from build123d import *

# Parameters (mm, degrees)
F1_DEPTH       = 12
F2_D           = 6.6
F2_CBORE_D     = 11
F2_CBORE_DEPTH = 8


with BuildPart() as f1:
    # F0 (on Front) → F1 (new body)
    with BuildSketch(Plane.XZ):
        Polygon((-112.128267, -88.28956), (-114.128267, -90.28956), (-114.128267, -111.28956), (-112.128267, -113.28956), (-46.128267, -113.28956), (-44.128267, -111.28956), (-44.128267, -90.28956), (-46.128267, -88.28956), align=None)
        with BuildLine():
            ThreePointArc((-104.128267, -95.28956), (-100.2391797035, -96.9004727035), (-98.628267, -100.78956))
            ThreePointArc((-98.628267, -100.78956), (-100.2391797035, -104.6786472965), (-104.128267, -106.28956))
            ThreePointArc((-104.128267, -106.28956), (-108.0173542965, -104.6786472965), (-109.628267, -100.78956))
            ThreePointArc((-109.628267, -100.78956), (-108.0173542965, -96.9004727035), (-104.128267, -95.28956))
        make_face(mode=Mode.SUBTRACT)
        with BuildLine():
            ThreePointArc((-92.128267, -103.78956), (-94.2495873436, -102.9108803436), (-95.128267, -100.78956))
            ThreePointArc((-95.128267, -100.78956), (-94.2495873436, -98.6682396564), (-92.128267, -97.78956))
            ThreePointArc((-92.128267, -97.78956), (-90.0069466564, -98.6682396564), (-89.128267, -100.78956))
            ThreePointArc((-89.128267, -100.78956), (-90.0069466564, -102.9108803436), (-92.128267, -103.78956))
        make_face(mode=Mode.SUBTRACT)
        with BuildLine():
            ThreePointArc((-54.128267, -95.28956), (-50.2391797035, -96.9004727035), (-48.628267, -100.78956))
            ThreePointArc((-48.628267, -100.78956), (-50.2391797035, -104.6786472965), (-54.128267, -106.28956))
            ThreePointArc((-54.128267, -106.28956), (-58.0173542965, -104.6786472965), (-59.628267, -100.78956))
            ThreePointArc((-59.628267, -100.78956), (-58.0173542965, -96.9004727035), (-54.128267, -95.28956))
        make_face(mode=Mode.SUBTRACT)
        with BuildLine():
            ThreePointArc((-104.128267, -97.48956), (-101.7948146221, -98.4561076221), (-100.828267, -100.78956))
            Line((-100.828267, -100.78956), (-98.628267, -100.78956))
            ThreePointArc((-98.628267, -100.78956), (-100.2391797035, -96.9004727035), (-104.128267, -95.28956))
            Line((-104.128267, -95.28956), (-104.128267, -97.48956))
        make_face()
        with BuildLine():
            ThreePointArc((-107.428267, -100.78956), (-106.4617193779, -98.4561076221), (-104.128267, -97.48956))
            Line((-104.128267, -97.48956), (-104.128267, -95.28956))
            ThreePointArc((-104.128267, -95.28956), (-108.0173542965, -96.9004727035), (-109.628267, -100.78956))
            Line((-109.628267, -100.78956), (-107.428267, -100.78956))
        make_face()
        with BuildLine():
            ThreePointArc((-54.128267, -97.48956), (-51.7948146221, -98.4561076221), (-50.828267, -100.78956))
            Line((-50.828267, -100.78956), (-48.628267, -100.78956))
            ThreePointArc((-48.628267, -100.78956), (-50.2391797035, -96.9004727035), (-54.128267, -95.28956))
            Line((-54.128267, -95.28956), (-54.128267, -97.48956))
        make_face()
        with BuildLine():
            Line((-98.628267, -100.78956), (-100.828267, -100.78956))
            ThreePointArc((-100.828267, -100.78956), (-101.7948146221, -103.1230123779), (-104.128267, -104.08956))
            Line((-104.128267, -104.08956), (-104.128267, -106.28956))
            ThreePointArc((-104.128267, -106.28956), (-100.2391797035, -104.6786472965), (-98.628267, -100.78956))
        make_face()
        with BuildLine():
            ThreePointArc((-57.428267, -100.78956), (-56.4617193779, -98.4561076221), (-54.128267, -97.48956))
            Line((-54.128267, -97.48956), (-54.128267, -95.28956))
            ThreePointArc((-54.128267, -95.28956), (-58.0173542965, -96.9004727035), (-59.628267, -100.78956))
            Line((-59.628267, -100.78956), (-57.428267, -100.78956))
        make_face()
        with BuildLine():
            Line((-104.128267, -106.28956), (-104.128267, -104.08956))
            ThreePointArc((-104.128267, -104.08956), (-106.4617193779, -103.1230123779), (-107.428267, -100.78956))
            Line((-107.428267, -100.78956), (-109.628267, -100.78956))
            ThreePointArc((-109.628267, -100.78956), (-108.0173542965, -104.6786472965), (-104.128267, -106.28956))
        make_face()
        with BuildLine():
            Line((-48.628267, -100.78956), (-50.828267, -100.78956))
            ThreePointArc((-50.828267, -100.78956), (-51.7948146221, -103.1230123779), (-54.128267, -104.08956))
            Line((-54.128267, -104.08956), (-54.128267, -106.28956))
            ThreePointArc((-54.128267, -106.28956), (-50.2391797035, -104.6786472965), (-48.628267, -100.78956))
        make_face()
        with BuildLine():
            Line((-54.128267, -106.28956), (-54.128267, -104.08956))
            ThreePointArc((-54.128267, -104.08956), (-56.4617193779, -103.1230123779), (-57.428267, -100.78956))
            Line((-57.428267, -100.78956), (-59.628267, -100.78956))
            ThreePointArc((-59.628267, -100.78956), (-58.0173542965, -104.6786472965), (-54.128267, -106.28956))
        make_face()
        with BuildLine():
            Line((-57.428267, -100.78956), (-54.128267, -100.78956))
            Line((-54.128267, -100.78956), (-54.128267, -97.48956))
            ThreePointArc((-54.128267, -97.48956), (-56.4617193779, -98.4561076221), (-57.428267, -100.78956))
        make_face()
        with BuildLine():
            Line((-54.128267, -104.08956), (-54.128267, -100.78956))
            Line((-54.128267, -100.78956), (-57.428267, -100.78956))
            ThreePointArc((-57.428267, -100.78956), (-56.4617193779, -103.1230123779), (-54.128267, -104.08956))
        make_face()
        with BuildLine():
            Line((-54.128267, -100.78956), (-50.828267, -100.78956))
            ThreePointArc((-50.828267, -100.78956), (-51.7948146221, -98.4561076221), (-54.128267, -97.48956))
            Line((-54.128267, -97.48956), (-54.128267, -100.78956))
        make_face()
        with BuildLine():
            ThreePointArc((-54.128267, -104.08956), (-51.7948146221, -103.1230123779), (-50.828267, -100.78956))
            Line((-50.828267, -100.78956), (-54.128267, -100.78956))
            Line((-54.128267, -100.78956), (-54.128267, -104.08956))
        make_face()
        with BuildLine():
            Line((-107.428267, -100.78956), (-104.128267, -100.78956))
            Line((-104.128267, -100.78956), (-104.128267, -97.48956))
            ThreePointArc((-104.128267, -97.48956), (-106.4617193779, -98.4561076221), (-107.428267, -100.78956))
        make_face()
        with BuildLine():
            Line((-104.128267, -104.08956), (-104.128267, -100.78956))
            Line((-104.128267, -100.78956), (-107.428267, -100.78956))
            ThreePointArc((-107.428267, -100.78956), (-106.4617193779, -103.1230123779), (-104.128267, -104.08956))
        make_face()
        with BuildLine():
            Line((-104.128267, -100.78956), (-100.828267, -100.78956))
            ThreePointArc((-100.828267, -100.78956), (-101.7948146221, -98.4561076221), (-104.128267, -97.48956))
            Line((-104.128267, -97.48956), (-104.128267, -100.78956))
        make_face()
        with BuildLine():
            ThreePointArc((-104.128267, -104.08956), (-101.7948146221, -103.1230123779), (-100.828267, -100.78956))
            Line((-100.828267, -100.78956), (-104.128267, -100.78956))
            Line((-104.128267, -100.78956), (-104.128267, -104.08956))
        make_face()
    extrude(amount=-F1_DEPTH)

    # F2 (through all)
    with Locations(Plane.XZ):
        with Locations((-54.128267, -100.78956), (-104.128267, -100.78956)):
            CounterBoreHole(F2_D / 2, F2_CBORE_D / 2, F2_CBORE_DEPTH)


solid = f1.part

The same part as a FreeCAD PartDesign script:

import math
import FreeCAD as App
import Part
import Sketcher
from FreeCAD import Vector
Q = App.Units.Quantity


def add_polygon(sketch, points):
    """Adds a closed chain of lines whose ends are joined by coincident constraints."""
    first, n = sketch.GeometryCount, len(points)
    for a, b in zip(points, points[1:] + points[:1]):
        sketch.addGeometry(Part.LineSegment(App.Vector(*a, 0), App.Vector(*b, 0)), False)
    for i in range(n):
        sketch.addConstraint(Sketcher.Constraint("Coincident", first + i, 2, first + (i + 1) % n, 1))

doc = App.newDocument("Part")
body = doc.addObject("PartDesign::Body", "Body")

# Sketch on XZ plane
sketch1 = doc.addObject("Sketcher::SketchObject", "Sketch")
body.addObject(sketch1)
sketch1.AttachmentSupport = (doc.XZ_Plane, [""])
sketch1.MapMode = "FlatFace"
add_polygon(sketch1, [(-112.1, -88.3), (-114.1, -90.3), (-114.1, -111.3), (-112.1, -113.3), (-46.1, -113.3), (-44.1, -111.3), (-44.1, -90.3), (-46.1, -88.3)])  # lines 0-7
sketch1.addGeometry(Part.ArcOfCircle(Part.Circle(Vector(-92.1, -100.8, 0), Vector(0, 0, 1), 3), math.radians(-90), math.radians(0)), False)  # 8
sketch1.addGeometry(Part.ArcOfCircle(Part.Circle(Vector(-92.1, -100.8, 0), Vector(0, 0, 1), 3), math.radians(180), math.radians(270)), False)  # 9
sketch1.addGeometry(Part.ArcOfCircle(Part.Circle(Vector(-92.1, -100.8, 0), Vector(0, 0, 1), 3), math.radians(90), math.radians(180)), False)  # 10
sketch1.addGeometry(Part.ArcOfCircle(Part.Circle(Vector(-92.1, -100.8, 0), Vector(0, 0, 1), 3), math.radians(0), math.radians(90)), False)  # 11
sketch1.addConstraint(Sketcher.Constraint("Tangent", 8, 1, 9, 2))
sketch1.addConstraint(Sketcher.Constraint("Tangent", 9, 1, 10, 2))
sketch1.addConstraint(Sketcher.Constraint("Tangent", 10, 1, 11, 2))
sketch1.addConstraint(Sketcher.Constraint("Tangent", 11, 1, 8, 2))
sketch1.addConstraint(Sketcher.Constraint("Vertical", 1))
sketch1.addConstraint(Sketcher.Constraint("Horizontal", 3))
sketch1.addConstraint(Sketcher.Constraint("Vertical", 5))
sketch1.addConstraint(Sketcher.Constraint("Horizontal", 7))
sketch1.addConstraint(Sketcher.Constraint("Equal", 8, 9))
sketch1.addConstraint(Sketcher.Constraint("Perpendicular", 0, 2))
sketch1.addConstraint(Sketcher.Constraint("Perpendicular", 2, 4))
sketch1.addConstraint(Sketcher.Constraint("Perpendicular", 4, 6))
sketch1.addConstraint(Sketcher.Constraint("Horizontal", 1, 2, 4, 2))
sketch1.addConstraint(Sketcher.Constraint("Horizontal", 0, 2, 5, 2))
sketch1.addConstraint(Sketcher.Constraint("Horizontal", 11, 3, 9, 1))
sketch1.addConstraint(Sketcher.Constraint("Horizontal", 9, 1, 11, 1))
sketch1.addConstraint(Sketcher.Constraint("Vertical", 3, 2, 6, 2))
sketch1.addConstraint(Sketcher.Constraint("Vertical", 2, 2, 7, 2))
sketch1.addConstraint(Sketcher.Constraint("Vertical", 11, 3, 8, 1))
sketch1.addConstraint(Sketcher.Constraint("Vertical", 8, 1, 10, 1))
sketch1.addConstraint(Sketcher.Constraint("Radius", 8, Q("3 mm")))
sketch1.addConstraint(Sketcher.Constraint("DistanceX", 3, 1, 3, 2, Q("66 mm")))
sketch1.addConstraint(Sketcher.Constraint("DistanceY", 1, 2, 1, 1, Q("21 mm")))
sketch1.addConstraint(Sketcher.Constraint("DistanceX", 0, 2, 8, 3, Q("22 mm")))
sketch1.addConstraint(Sketcher.Constraint("DistanceX", 1, 2, 2, 2, Q("2 mm")))
sketch1.addConstraint(Sketcher.Constraint("DistanceY", 8, 3, 0, 2, Q("10.5 mm")))
sketch1.addConstraint(Sketcher.Constraint("DistanceY", 8, 3, -1, 1, Q("100.78956 mm")))
sketch1.addConstraint(Sketcher.Constraint("DistanceX", 8, 3, -1, 1, Q("92.128267 mm")))
pad1 = doc.addObject("PartDesign::Pad", "Pad")
body.addObject(pad1)
pad1.Profile = sketch1
pad1.Length = 12
pad1.Reversed = True

# Sketch on XZ plane
sketch2 = doc.addObject("Sketcher::SketchObject", "Sketch001")
body.addObject(sketch2)
sketch2.AttachmentSupport = (doc.XZ_Plane, [""])
sketch2.MapMode = "FlatFace"
sketch2.addGeometry(Part.Circle(Vector(-54.1, -100.8, 0), Vector(0, 0, 1), 3.3), False)
sketch2.addGeometry(Part.Circle(Vector(-104.1, -100.8, 0), Vector(0, 0, 1), 3.3), False)
sketch2.addConstraint(Sketcher.Constraint("Equal", 0, 1))
sketch2.addConstraint(Sketcher.Constraint("Horizontal", 0, 3, 1, 3))
sketch2.addConstraint(Sketcher.Constraint("Diameter", 0, Q("6.6 mm")))
sketch2.addConstraint(Sketcher.Constraint("DistanceX", 1, 3, 0, 3, Q("50 mm")))
sketch2.addConstraint(Sketcher.Constraint("DistanceY", 0, 3, -1, 1, Q("100.78956 mm")))
sketch2.addConstraint(Sketcher.Constraint("DistanceX", 0, 3, -1, 1, Q("54.128267 mm")))
doc.recompute()
hole = doc.addObject("PartDesign::Hole", "Hole")
body.addObject(hole)
hole.Profile = sketch2
hole.ThreadType = "None"
hole.Diameter = 6.6
hole.DepthType = "ThroughAll"
hole.HoleCutType = "Counterbore"
hole.HoleCutDiameter = 11
hole.HoleCutDepth = 8

doc.recompute()
